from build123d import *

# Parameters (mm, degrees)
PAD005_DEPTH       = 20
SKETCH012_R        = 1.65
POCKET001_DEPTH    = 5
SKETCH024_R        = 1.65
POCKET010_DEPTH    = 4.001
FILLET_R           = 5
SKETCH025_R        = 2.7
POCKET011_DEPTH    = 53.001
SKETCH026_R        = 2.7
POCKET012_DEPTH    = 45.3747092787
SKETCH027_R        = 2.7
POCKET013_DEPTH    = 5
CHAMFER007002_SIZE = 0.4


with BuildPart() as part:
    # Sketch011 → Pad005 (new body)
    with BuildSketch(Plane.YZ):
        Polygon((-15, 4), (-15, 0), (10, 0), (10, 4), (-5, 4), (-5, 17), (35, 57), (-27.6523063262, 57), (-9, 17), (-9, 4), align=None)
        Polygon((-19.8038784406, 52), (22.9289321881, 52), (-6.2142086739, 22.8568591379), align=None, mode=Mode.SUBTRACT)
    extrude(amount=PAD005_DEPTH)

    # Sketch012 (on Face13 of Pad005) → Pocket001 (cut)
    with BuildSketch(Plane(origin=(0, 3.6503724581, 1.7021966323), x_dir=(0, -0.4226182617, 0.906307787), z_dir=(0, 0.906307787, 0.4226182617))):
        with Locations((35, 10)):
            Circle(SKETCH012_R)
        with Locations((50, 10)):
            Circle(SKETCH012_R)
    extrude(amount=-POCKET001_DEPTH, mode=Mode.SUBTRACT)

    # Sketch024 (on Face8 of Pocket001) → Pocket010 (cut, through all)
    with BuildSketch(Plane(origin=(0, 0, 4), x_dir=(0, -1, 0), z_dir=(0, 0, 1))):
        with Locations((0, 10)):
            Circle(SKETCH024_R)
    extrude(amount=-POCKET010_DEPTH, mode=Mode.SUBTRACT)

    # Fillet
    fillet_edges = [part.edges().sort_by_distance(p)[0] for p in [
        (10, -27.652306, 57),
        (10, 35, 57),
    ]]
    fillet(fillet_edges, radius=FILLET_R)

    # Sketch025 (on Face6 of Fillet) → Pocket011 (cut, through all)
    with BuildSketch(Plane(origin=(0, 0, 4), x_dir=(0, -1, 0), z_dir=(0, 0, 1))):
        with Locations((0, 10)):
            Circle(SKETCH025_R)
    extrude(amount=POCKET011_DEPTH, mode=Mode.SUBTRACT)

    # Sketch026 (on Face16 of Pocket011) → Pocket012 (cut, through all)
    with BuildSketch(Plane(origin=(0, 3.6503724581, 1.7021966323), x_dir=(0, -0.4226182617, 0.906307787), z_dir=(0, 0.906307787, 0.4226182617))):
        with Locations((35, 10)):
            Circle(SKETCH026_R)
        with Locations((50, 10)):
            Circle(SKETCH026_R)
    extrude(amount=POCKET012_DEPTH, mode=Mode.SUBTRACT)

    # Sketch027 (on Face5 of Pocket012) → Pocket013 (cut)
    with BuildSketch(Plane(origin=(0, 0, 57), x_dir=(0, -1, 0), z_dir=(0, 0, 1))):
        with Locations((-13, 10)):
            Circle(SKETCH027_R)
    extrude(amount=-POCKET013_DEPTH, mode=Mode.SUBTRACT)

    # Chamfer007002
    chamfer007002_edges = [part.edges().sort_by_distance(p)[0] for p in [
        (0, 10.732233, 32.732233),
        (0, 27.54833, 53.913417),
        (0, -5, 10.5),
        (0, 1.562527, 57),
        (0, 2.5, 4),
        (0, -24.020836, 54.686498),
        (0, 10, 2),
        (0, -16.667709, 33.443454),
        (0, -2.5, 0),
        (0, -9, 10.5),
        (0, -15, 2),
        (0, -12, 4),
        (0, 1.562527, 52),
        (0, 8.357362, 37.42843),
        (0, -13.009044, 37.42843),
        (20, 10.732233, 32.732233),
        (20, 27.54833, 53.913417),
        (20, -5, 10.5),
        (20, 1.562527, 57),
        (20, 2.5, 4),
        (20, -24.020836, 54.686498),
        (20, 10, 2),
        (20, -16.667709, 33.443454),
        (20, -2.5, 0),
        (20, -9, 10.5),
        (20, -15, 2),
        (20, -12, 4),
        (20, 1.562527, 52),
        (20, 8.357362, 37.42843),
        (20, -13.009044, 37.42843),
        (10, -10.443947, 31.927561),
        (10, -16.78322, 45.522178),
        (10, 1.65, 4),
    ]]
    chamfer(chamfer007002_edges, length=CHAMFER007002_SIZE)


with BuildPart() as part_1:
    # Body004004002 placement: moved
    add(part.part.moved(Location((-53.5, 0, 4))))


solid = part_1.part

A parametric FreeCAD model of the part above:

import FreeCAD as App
import Part
import Sketcher
Q = App.Units.Quantity


def edges_at(feature, points):
    """Names of the edges that pass closest to the given points."""
    edges = feature.Shape.Edges
    near = lambda p: min(range(len(edges)), key=lambda i: edges[i].distToShape(Part.Vertex(*p))[0])
    return sorted({f"Edge{near(p) + 1}" for p in points})

doc = App.newDocument("Part")
body = doc.addObject("PartDesign::Body", "Body")

sketch1 = body.newObject("Sketcher::SketchObject", "Sketch")
sketch1.AttachmentSupport = (doc.getObject("YZ_Plane"), [""])
sketch1.MapMode = "FlatFace"
sketch1.addGeometry([
    Part.LineSegment(App.Vector(-15, 4, 0), App.Vector(-15, 0, 0)),
    Part.LineSegment(App.Vector(-15, 0, 0), App.Vector(10, 0, 0)),
    Part.LineSegment(App.Vector(10, 0, 0), App.Vector(10, 4, 0)),
    Part.LineSegment(App.Vector(10, 4, 0), App.Vector(-5, 4, 0)),
    Part.LineSegment(App.Vector(-5, 4, 0), App.Vector(-5, 17, 0)),
    Part.LineSegment(App.Vector(-5, 17, 0), App.Vector(35, 57, 0)),
    Part.LineSegment(App.Vector(35, 57, 0), App.Vector(-27.7, 57, 0)),
    Part.LineSegment(App.Vector(-27.7, 57, 0), App.Vector(-9, 17, 0)),
    Part.LineSegment(App.Vector(-9, 17, 0), App.Vector(-9, 4, 0)),
    Part.LineSegment(App.Vector(-9, 4, 0), App.Vector(-15, 4, 0)),
    Part.LineSegment(App.Vector(-6.2, 22.9, 0), App.Vector(-19.8, 52, 0)),
    Part.LineSegment(App.Vector(-19.8, 52, 0), App.Vector(22.9, 52, 0)),
    Part.LineSegment(App.Vector(22.9, 52, 0), App.Vector(-6.2, 22.9, 0)),
], False)
sketch1.addConstraint([
    Sketcher.Constraint("Coincident", 0, 2, 1, 1),
    Sketcher.Constraint("Coincident", 1, 2, 2, 1),
    Sketcher.Constraint("Coincident", 2, 2, 3, 1),
    Sketcher.Constraint("Coincident", 3, 2, 4, 1),
    Sketcher.Constraint("Coincident", 4, 2, 5, 1),
    Sketcher.Constraint("Coincident", 5, 2, 6, 1),
    Sketcher.Constraint("Coincident", 6, 2, 7, 1),
    Sketcher.Constraint("Coincident", 7, 2, 8, 1),
    Sketcher.Constraint("Coincident", 8, 2, 9, 1),
    Sketcher.Constraint("Coincident", 9, 2, 0, 1),
    Sketcher.Constraint("Coincident", 10, 2, 11, 1),
    Sketcher.Constraint("Coincident", 11, 2, 12, 1),
    Sketcher.Constraint("Coincident", 12, 2, 10, 1),
    Sketcher.Constraint("Vertical", 0),
    Sketcher.Constraint("Horizontal", 1),
    Sketcher.Constraint("Vertical", 2),
    Sketcher.Constraint("Horizontal", 3),
    Sketcher.Constraint("Vertical", 4),
    Sketcher.Constraint("Horizontal", 6),
    Sketcher.Constraint("Vertical", 8),
    Sketcher.Constraint("Horizontal", 9),
    Sketcher.Constraint("Horizontal", 11),
    Sketcher.Constraint("PointOnObject", 0, 2, -1),
    Sketcher.Constraint("Parallel", 7, 10),
    Sketcher.Constraint("Parallel", 5, 12),
    Sketcher.Constraint("Horizontal", 4, 2, 7, 2),
    Sketcher.Constraint("Horizontal", 3, 2, 8, 2),
    Sketcher.Constraint("DistanceX", 1, 1, 1, 2, Q("25 mm")),
    Sketcher.Constraint("DistanceX", 3, 2, 3, 1, Q("15 mm")),
    Sketcher.Constraint("DistanceX", 9, 2, 9, 1, Q("6 mm")),
    Sketcher.Constraint("DistanceY", 0, 2, 0, 1, Q("4 mm")),
    Sketcher.Constraint("DistanceY", 4, 1, 4, 2, Q("13 mm")),
    Sketcher.Constraint("Angle", 5, Q("45 deg")),
    Sketcher.Constraint("Angle", 7, Q("-65 deg")),
    Sketcher.Constraint("DistanceX", 0, 2, -1, 1, Q("15 mm")),
    Sketcher.Constraint("DistanceX", -1, 1, 5, 2, Q("35 mm")),
    Sketcher.Constraint("DistanceY", -1, 1, 10, 2, Q("52 mm")),
    Sketcher.Constraint("Distance", 10, Q("32.155898 mm")),
    Sketcher.Constraint("DistanceX", 10, 2, -1, 1, Q("19.803878 mm")),
])
pad1 = body.newObject("PartDesign::Pad", "Pad")
pad1.Profile = sketch1
pad1.Length = 20

sketch2 = body.newObject("Sketcher::SketchObject", "Sketch001")
sketch2.Placement = App.Placement(App.Vector(0, 3.650372, 1.702197), App.Rotation(App.Vector(0, -0.422618262, 0.906307787), App.Vector(1, 0, 0), App.Vector(0, 0.906307787, 0.422618262), "ZXY"))
sketch2.addGeometry([
    Part.Circle(App.Vector(35, 10, 0), App.Vector(0, 0, 1), 1.6),
    Part.Circle(App.Vector(50, 10, 0), App.Vector(0, 0, 1), 1.6),
], False)
sketch2.addConstraint([
    Sketcher.Constraint("Equal", 0, 1),
    Sketcher.Constraint("Horizontal", 0, 3, 1, 3),
    Sketcher.Constraint("Diameter", 0, Q("3.3 mm")),
    Sketcher.Constraint("DistanceX", -1, 1, 0, 3, Q("35 mm")),
    Sketcher.Constraint("DistanceY", -1, 1, 0, 3, Q("10 mm")),
    Sketcher.Constraint("DistanceX", -1, 1, 1, 3, Q("50 mm")),
])
pocket1 = body.newObject("PartDesign::Pocket", "Pocket")
pocket1.Profile = sketch2
pocket1.Length = 5

sketch3 = body.newObject("Sketcher::SketchObject", "Sketch002")
sketch3.AttachmentSupport = (doc.getObject("XY_Plane"), [""])
sketch3.MapMode = "FlatFace"
sketch3.AttachmentOffset = App.Placement(App.Vector(0, 0, 4), App.Rotation())
sketch3.addGeometry(Part.Circle(App.Vector(10, 0, 0), App.Vector(0, 0, 1), 1.6), False)
sketch3.addConstraint([
    Sketcher.Constraint("PointOnObject", 0, 3, -1),
    Sketcher.Constraint("Diameter", 0, Q("3.3 mm")),
    Sketcher.Constraint("DistanceX", -1, 1, 0, 3, Q("10 mm")),
])
pocket2 = body.newObject("PartDesign::Pocket", "Pocket001")
pocket2.Profile = sketch3
pocket2.Type = "ThroughAll"
doc.recompute()

fillet = body.newObject("PartDesign::Fillet", "Fillet")
fillet.Base = (pocket2, edges_at(pocket2, [(10, -27.652, 57), (10, 35, 57)]))
fillet.Radius = 5

sketch4 = body.newObject("Sketcher::SketchObject", "Sketch003")
sketch4.AttachmentSupport = (doc.getObject("XY_Plane"), [""])
sketch4.MapMode = "FlatFace"
sketch4.AttachmentOffset = App.Placement(App.Vector(0, 0, 4), App.Rotation())
sketch4.addGeometry(Part.Circle(App.Vector(10, 0, 0), App.Vector(0, 0, 1), 2.7), False)
sketch4.addConstraint([
    Sketcher.Constraint("PointOnObject", 0, 3, -1),
    Sketcher.Constraint("Diameter", 0, Q("5.4 mm")),
    Sketcher.Constraint("DistanceX", -1, 1, 0, 3, Q("10 mm")),
])
pocket3 = body.newObject("PartDesign::Pocket", "Pocket002")
pocket3.Profile = sketch4
pocket3.Type = "ThroughAll"
pocket3.Reversed = True

sketch5 = body.newObject("Sketcher::SketchObject", "Sketch004")
sketch5.Placement = App.Placement(App.Vector(0, 3.650372, 1.702197), App.Rotation(App.Vector(0, -0.422618262, 0.906307787), App.Vector(1, 0, 0), App.Vector(0, 0.906307787, 0.422618262), "ZXY"))
sketch5.addGeometry([
    Part.Circle(App.Vector(35, 10, 0), App.Vector(0, 0, 1), 2.7),
    Part.Circle(App.Vector(50, 10, 0), App.Vector(0, 0, 1), 2.7),
], False)
sketch5.addConstraint([
    Sketcher.Constraint("Equal", 0, 1),
    Sketcher.Constraint("Horizontal", 0, 3, 1, 3),
    Sketcher.Constraint("Diameter", 0, Q("5.4 mm")),
    Sketcher.Constraint("DistanceX", -1, 1, 0, 3, Q("35 mm")),
    Sketcher.Constraint("DistanceY", -1, 1, 0, 3, Q("10 mm")),
    Sketcher.Constraint("DistanceX", -1, 1, 1, 3, Q("50 mm")),
])
pocket4 = body.newObject("PartDesign::Pocket", "Pocket003")
pocket4.Profile = sketch5
pocket4.Type = "ThroughAll"
pocket4.Reversed = True

sketch6 = body.newObject("Sketcher::SketchObject", "Sketch005")
sketch6.AttachmentSupport = (doc.getObject("XY_Plane"), [""])
sketch6.MapMode = "FlatFace"
sketch6.AttachmentOffset = App.Placement(App.Vector(0, 0, 57), App.Rotation())
sketch6.addGeometry(Part.Circle(App.Vector(10, 13, 0), App.Vector(0, 0, 1), 2.7), False)
sketch6.addConstraint([
    Sketcher.Constraint("Diameter", 0, Q("5.4 mm")),
    Sketcher.Constraint("DistanceX", -1, 1, 0, 3, Q("10 mm")),
    Sketcher.Constraint("DistanceY", -1, 1, 0, 3, Q("13 mm")),
])
pocket5 = body.newObject("PartDesign::Pocket", "Pocket004")
pocket5.Profile = sketch6
pocket5.Length = 5
doc.recompute()

chamfer = body.newObject("PartDesign::Chamfer", "Chamfer")
chamfer.Base = (pocket5, edges_at(pocket5, [
    (0, 10.732, 32.732),
    (0, 27.548, 53.913),
    (0, -5, 10.5),
    (0, 1.563, 57),
    (0, 2.5, 4),
    (0, -24.021, 54.686),
    (0, 10, 2),
    (0, -16.668, 33.443),
    (0, -2.5, 0),
    (0, -9, 10.5),
    (0, -15, 2),
    (0, -12, 4),
    (0, 1.563, 52),
    (0, 8.357, 37.428),
    (0, -13.009, 37.428),
    (20, 10.732, 32.732),
    (20, 27.548, 53.913),
    (20, -5, 10.5),
    (20, 1.563, 57),
    (20, 2.5, 4),
    (20, -24.021, 54.686),
    (20, 10, 2),
    (20, -16.668, 33.443),
    (20, -2.5, 0),
    (20, -9, 10.5),
    (20, -15, 2),
    (20, -12, 4),
    (20, 1.563, 52),
    (20, 8.357, 37.428),
    (20, -13.009, 37.428),
    (10, -10.444, 31.928),
    (10, -16.783, 45.522),
    (10, 1.65, 4),
]))
chamfer.Size = 0.4
body2 = doc.addObject("PartDesign::Body", "Body001")
doc.recompute()

body.Placement = App.Placement(App.Vector(-53.5, 0, 4), App.Rotation(App.Vector(0, 0, 1), 0))
boolean = body2.newObject("PartDesign::Boolean", "Boolean")
boolean.Type = "Fuse"
boolean.addObjects([body])

doc.recompute()
